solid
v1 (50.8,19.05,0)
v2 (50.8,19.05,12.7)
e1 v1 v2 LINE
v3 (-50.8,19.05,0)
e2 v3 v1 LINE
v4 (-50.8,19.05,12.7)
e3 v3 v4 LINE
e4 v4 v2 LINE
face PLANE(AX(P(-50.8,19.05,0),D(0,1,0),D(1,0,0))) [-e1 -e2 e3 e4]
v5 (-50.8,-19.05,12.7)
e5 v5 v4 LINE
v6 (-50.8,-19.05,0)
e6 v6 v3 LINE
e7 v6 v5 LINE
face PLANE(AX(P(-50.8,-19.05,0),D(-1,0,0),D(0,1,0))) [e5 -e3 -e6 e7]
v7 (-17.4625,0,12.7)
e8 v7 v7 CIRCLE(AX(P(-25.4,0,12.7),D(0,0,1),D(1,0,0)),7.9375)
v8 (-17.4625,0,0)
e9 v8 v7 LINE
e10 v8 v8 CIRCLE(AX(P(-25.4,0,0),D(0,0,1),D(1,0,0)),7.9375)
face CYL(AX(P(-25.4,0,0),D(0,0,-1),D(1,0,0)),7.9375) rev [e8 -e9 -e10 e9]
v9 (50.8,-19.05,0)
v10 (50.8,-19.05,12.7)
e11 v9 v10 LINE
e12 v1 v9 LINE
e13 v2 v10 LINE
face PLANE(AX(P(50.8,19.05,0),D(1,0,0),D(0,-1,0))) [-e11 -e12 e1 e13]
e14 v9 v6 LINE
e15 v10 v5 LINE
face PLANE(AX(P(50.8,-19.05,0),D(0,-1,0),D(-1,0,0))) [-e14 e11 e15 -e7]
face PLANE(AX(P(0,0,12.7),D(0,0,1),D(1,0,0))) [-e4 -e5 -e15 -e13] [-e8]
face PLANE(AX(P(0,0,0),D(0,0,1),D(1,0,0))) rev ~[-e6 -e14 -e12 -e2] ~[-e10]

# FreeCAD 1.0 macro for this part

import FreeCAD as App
import Part
import Sketcher
from FreeCAD import Vector
Q = App.Units.Quantity

doc = App.newDocument("Part")
params = doc.addObject("Spreadsheet::Sheet", "Params")
for row, (alias, value) in enumerate([
    ("sketch1_width", "4 in"),
    ("sketch1_diameter", "0.625 in"),
    ("sketch1_height", "1.5 in"),
    ("pad1_length", "0.5 in"),
], start=1):
    params.set(f"A{row}", alias)
    params.set(f"B{row}", "=" + value)
    params.setAlias(f"B{row}", alias)

body = doc.addObject("PartDesign::Body", "Body")

# Sketch on XY plane
sketch1 = doc.addObject("Sketcher::SketchObject", "Sketch")
body.addObject(sketch1)
sketch1.AttachmentSupport = (doc.XY_Plane, [""])
sketch1.MapMode = "FlatFace"
sketch1.addGeometry([
    Part.LineSegment(Vector(-51, -19, 0), Vector(51, -19, 0)),  # 0
    Part.LineSegment(Vector(51, -19, 0), Vector(51, 19, 0)),  # 1
    Part.LineSegment(Vector(51, 19, 0), Vector(-51, 19, 0)),  # 2
    Part.LineSegment(Vector(-51, 19, 0), Vector(-51, -19, 0)),  # 3
    Part.Circle(Vector(-25, 0, 0), Vector(0, 0, 1), 8),  # 4
], False)
sketch1.addConstraint([
    Sketcher.Constraint("Coincident", 0, 2, 1, 1),
    Sketcher.Constraint("Coincident", 1, 2, 2, 1),
    Sketcher.Constraint("Coincident", 2, 2, 3, 1),
    Sketcher.Constraint("Coincident", 3, 2, 0, 1),
    Sketcher.Constraint("Horizontal", 0),
    Sketcher.Constraint("Vertical", 1),
    Sketcher.Constraint("Horizontal", 2),
    Sketcher.Constraint("Vertical", 3),
    Sketcher.Constraint("Symmetric", 0, 2, 2, 2, -1, 1),
    Sketcher.Constraint("PointOnObject", 4, 3, -1),
    Sketcher.Constraint("DistanceX", 0, 1, 0, 2, Q("4 in")),
    Sketcher.Constraint("Diameter", 4, Q("0.625 in")),
    Sketcher.Constraint("DistanceY", 1, 1, 1, 2, Q("1.5 in")),
    Sketcher.Constraint("DistanceX", 4, 3, -1, 1, Q("1 in")),
])
sketch1.setExpression("Constraints[10]", "Params.sketch1_width")
sketch1.setExpression("Constraints[11]", "Params.sketch1_diameter")
sketch1.setExpression("Constraints[12]", "Params.sketch1_height")
pad1 = doc.addObject("PartDesign::Pad", "Pad")
body.addObject(pad1)
pad1.Profile = sketch1
pad1.setExpression("Length", "Params.pad1_length")

doc.recompute()
